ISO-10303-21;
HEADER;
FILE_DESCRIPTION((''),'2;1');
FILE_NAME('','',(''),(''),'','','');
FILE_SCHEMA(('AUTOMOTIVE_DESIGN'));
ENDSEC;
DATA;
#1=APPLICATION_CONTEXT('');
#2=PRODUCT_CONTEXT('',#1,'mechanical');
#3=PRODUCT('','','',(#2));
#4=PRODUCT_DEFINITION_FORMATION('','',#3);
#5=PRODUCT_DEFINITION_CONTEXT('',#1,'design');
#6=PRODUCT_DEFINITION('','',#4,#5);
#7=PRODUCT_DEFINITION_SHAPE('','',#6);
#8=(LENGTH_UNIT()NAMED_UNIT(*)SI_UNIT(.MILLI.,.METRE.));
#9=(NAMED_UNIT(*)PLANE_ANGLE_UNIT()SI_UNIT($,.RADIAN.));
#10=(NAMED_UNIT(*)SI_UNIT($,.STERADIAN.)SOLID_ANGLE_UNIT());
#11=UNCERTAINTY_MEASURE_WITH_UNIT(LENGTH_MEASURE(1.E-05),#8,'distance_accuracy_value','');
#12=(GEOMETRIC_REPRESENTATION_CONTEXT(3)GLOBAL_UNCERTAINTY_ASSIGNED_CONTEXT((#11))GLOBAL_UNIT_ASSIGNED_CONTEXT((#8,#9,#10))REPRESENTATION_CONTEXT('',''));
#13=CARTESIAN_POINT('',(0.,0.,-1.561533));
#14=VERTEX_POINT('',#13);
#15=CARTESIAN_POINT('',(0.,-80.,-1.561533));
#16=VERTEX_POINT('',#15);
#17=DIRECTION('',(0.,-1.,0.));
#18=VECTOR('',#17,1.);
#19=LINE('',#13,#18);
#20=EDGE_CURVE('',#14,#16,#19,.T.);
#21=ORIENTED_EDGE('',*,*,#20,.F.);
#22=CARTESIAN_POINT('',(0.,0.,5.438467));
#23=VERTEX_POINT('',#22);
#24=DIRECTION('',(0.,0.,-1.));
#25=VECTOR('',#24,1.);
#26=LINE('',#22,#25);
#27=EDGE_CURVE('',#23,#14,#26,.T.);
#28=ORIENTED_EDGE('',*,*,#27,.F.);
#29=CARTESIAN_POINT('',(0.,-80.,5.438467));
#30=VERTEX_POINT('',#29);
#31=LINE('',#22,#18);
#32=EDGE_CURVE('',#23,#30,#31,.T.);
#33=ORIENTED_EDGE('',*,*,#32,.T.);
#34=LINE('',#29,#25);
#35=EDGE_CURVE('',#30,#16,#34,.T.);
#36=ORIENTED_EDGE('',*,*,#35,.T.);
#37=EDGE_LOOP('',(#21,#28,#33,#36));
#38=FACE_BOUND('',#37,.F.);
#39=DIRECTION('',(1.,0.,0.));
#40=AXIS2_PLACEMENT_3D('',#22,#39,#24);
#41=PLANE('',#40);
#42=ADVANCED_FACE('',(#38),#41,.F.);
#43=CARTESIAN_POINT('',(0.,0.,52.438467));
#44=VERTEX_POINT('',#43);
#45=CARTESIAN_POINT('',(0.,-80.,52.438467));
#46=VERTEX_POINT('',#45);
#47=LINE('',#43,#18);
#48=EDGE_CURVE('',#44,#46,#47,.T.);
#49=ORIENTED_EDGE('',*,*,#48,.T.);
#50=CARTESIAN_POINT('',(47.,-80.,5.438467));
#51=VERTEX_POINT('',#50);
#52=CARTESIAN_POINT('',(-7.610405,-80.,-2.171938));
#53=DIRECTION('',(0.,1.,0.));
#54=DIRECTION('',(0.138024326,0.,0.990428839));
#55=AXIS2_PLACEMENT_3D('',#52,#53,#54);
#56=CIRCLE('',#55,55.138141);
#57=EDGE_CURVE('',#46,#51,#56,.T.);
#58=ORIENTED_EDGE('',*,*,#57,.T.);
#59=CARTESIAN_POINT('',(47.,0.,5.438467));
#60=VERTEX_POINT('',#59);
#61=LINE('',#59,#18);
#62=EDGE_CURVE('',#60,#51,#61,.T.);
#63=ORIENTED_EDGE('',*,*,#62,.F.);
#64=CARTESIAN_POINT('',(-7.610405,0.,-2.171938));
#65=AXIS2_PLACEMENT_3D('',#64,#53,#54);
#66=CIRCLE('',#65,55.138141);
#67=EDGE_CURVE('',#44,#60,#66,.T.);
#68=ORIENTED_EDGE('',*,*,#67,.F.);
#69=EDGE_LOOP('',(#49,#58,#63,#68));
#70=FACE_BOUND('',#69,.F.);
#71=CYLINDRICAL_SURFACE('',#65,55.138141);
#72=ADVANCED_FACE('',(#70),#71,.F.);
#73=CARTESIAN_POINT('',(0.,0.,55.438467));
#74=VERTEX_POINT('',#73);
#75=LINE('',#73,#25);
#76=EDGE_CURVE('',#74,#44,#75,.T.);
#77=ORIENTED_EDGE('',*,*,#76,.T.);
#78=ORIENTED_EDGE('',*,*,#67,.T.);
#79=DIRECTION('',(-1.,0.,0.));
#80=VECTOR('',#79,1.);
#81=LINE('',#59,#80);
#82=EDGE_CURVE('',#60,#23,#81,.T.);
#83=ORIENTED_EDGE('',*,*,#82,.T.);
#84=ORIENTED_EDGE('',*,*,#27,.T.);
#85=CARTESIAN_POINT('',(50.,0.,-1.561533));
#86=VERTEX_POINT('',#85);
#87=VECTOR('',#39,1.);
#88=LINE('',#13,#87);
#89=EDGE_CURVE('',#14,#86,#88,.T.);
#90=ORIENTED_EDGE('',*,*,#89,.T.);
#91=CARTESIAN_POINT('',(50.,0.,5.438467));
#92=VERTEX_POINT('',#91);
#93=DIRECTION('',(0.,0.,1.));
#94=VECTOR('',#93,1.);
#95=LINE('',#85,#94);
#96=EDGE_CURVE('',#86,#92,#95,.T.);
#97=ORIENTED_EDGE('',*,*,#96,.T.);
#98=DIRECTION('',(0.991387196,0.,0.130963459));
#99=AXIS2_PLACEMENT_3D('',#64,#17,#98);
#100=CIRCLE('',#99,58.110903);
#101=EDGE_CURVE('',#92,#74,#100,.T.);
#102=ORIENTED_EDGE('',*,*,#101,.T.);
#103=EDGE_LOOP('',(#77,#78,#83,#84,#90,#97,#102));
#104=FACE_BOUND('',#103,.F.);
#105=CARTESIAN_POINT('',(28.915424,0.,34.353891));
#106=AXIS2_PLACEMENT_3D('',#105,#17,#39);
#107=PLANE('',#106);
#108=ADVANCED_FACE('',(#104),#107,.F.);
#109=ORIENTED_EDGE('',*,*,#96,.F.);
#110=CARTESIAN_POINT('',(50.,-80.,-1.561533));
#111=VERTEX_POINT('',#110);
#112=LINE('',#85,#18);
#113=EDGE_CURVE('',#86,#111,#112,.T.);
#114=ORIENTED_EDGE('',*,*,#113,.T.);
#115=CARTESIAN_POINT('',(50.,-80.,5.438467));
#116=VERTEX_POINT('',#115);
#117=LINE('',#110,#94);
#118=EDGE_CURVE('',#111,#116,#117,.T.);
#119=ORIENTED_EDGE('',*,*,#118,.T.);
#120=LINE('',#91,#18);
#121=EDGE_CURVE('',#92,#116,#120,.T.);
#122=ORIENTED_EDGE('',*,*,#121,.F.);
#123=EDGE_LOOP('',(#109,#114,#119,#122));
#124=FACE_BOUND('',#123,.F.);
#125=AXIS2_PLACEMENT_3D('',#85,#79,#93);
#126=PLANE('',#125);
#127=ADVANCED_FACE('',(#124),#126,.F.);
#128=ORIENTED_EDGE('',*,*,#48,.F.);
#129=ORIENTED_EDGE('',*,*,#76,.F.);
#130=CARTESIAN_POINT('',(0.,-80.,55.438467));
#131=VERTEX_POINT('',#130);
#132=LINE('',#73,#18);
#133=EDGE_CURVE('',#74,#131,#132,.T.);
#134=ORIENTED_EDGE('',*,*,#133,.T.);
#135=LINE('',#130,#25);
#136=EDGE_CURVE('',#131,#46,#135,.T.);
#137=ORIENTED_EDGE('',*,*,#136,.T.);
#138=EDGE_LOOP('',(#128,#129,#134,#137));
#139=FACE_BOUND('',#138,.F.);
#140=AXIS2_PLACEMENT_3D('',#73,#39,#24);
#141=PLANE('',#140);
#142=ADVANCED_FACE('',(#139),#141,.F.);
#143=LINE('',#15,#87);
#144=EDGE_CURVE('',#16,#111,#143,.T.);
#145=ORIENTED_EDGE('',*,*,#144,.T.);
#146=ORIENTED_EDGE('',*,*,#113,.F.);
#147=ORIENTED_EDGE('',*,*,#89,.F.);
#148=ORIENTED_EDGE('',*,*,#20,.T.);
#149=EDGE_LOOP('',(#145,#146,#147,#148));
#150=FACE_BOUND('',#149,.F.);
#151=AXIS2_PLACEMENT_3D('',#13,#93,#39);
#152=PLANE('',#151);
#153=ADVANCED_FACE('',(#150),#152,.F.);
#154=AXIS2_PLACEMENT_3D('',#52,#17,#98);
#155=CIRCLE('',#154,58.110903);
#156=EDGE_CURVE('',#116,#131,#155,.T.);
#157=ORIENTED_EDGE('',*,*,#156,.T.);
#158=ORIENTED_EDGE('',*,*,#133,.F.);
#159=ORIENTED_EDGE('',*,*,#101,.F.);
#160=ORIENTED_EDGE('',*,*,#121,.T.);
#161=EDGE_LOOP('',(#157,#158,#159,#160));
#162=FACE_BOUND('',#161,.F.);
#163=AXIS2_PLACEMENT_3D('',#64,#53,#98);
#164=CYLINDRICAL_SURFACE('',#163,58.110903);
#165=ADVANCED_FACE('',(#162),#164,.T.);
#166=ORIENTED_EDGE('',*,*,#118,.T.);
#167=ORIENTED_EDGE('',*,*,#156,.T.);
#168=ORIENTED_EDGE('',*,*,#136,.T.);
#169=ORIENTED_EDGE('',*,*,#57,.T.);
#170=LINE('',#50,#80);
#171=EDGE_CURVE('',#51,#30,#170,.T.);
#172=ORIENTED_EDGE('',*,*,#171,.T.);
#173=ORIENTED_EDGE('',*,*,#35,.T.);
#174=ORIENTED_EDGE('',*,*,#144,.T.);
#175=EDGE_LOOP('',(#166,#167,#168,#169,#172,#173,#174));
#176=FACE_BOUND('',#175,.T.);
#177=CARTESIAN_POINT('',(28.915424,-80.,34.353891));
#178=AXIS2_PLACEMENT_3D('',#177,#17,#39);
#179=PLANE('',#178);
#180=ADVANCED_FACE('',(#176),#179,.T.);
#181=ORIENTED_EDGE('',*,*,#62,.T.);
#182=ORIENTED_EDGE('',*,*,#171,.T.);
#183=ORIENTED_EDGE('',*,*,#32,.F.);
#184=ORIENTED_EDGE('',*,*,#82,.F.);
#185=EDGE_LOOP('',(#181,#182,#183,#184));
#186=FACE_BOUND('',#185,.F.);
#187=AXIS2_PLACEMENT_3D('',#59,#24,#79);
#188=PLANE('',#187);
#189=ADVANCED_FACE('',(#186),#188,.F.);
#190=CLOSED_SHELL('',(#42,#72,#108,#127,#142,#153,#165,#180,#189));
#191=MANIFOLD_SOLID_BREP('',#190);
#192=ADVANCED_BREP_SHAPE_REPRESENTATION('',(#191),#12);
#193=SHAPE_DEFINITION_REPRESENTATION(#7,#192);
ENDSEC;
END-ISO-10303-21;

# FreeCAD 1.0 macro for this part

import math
import FreeCAD as App
import Part
import Sketcher
from FreeCAD import Vector

doc = App.newDocument("Part")
params = doc.addObject("Spreadsheet::Sheet", "Params")
for row, (alias, value) in enumerate([
    ("sketch1_width", "47 mm"),
    ("sketch1_width2", "50 mm"),
    ("sketch1_height", "7 mm"),
    ("sketch1_height2", "3 mm"),
    ("pad1_length", "80 mm"),
], start=1):
    params.set(f"A{row}", alias)
    params.set(f"B{row}", "=" + value)
    params.setAlias(f"B{row}", alias)

body = doc.addObject("PartDesign::Body", "Body")

sketch1 = body.newObject("Sketcher::SketchObject", "Sketch")
sketch1.AttachmentSupport = (doc.getObject("XZ_Plane"), [""])
sketch1.MapMode = "FlatFace"
sketch1.addGeometry([
    Part.ArcOfCircle(Part.Circle(Vector(-7.610405, -2.171938, 0), Vector(0, 0, 1), 55.138141), math.radians(7.933539), math.radians(82.066461)),
    Part.LineSegment(Vector(47, 5.438467, 0), Vector(0, 5.438467, 0)),
    Part.LineSegment(Vector(0, 5.438467, 0), Vector(0, -1.561533, 0)),
    Part.LineSegment(Vector(0, -1.561533, 0), Vector(50, -1.561533, 0)),
    Part.LineSegment(Vector(50, -1.561533, 0), Vector(50, 5.438467, 0)),
    Part.ArcOfCircle(Part.Circle(Vector(-7.610405, -2.171938, 0), Vector(0, 0, 1), 58.110903), math.radians(7.52527), math.radians(82.47473)),
    Part.LineSegment(Vector(0, 55.438467, 0), Vector(0, 52.438467, 0)),
], False)
sketch1.addConstraint([
    Sketcher.Constraint("Coincident", 0, 1, 1, 1),
    Sketcher.Constraint("Coincident", 1, 2, 2, 1),
    Sketcher.Constraint("Coincident", 2, 2, 3, 1),
    Sketcher.Constraint("Coincident", 3, 2, 4, 1),
    Sketcher.Constraint("Coincident", 4, 2, 5, 1),
    Sketcher.Constraint("Coincident", 5, 2, 6, 1),
    Sketcher.Constraint("Coincident", 6, 2, 0, 2),
    Sketcher.Constraint("Horizontal", 1),
    Sketcher.Constraint("Vertical", 2),
    Sketcher.Constraint("Horizontal", 3),
    Sketcher.Constraint("Vertical", 4),
    Sketcher.Constraint("Vertical", 6),
    Sketcher.Constraint("Coincident", 5, 3, 0, 3),
    Sketcher.Constraint("PointOnObject", 1, 2, -2),
    Sketcher.Constraint("PointOnObject", 5, 2, -2),
    Sketcher.Constraint("Horizontal", 1, 2, 4, 2),
    Sketcher.Constraint("DistanceX", 1, 2, 1, 1, 47.0),
    Sketcher.Constraint("DistanceX", 3, 1, 3, 2, 50.0),
    Sketcher.Constraint("DistanceY", 2, 2, 2, 1, 7.0),
    Sketcher.Constraint("DistanceY", 6, 2, 6, 1, 3.0),
    Sketcher.Constraint("Radius", 0, 55.138141),
    Sketcher.Constraint("DistanceY", 0, 3, -1, 1, 2.171938),
])
sketch1.setExpression("Constraints[16]", "Params.sketch1_width")
sketch1.setExpression("Constraints[17]", "Params.sketch1_width2")
sketch1.setExpression("Constraints[18]", "Params.sketch1_height")
sketch1.setExpression("Constraints[19]", "Params.sketch1_height2")
pad1 = body.newObject("PartDesign::Pad", "Pad")
pad1.Profile = sketch1
pad1.setExpression("Length", "Params.pad1_length")

doc.recompute()
